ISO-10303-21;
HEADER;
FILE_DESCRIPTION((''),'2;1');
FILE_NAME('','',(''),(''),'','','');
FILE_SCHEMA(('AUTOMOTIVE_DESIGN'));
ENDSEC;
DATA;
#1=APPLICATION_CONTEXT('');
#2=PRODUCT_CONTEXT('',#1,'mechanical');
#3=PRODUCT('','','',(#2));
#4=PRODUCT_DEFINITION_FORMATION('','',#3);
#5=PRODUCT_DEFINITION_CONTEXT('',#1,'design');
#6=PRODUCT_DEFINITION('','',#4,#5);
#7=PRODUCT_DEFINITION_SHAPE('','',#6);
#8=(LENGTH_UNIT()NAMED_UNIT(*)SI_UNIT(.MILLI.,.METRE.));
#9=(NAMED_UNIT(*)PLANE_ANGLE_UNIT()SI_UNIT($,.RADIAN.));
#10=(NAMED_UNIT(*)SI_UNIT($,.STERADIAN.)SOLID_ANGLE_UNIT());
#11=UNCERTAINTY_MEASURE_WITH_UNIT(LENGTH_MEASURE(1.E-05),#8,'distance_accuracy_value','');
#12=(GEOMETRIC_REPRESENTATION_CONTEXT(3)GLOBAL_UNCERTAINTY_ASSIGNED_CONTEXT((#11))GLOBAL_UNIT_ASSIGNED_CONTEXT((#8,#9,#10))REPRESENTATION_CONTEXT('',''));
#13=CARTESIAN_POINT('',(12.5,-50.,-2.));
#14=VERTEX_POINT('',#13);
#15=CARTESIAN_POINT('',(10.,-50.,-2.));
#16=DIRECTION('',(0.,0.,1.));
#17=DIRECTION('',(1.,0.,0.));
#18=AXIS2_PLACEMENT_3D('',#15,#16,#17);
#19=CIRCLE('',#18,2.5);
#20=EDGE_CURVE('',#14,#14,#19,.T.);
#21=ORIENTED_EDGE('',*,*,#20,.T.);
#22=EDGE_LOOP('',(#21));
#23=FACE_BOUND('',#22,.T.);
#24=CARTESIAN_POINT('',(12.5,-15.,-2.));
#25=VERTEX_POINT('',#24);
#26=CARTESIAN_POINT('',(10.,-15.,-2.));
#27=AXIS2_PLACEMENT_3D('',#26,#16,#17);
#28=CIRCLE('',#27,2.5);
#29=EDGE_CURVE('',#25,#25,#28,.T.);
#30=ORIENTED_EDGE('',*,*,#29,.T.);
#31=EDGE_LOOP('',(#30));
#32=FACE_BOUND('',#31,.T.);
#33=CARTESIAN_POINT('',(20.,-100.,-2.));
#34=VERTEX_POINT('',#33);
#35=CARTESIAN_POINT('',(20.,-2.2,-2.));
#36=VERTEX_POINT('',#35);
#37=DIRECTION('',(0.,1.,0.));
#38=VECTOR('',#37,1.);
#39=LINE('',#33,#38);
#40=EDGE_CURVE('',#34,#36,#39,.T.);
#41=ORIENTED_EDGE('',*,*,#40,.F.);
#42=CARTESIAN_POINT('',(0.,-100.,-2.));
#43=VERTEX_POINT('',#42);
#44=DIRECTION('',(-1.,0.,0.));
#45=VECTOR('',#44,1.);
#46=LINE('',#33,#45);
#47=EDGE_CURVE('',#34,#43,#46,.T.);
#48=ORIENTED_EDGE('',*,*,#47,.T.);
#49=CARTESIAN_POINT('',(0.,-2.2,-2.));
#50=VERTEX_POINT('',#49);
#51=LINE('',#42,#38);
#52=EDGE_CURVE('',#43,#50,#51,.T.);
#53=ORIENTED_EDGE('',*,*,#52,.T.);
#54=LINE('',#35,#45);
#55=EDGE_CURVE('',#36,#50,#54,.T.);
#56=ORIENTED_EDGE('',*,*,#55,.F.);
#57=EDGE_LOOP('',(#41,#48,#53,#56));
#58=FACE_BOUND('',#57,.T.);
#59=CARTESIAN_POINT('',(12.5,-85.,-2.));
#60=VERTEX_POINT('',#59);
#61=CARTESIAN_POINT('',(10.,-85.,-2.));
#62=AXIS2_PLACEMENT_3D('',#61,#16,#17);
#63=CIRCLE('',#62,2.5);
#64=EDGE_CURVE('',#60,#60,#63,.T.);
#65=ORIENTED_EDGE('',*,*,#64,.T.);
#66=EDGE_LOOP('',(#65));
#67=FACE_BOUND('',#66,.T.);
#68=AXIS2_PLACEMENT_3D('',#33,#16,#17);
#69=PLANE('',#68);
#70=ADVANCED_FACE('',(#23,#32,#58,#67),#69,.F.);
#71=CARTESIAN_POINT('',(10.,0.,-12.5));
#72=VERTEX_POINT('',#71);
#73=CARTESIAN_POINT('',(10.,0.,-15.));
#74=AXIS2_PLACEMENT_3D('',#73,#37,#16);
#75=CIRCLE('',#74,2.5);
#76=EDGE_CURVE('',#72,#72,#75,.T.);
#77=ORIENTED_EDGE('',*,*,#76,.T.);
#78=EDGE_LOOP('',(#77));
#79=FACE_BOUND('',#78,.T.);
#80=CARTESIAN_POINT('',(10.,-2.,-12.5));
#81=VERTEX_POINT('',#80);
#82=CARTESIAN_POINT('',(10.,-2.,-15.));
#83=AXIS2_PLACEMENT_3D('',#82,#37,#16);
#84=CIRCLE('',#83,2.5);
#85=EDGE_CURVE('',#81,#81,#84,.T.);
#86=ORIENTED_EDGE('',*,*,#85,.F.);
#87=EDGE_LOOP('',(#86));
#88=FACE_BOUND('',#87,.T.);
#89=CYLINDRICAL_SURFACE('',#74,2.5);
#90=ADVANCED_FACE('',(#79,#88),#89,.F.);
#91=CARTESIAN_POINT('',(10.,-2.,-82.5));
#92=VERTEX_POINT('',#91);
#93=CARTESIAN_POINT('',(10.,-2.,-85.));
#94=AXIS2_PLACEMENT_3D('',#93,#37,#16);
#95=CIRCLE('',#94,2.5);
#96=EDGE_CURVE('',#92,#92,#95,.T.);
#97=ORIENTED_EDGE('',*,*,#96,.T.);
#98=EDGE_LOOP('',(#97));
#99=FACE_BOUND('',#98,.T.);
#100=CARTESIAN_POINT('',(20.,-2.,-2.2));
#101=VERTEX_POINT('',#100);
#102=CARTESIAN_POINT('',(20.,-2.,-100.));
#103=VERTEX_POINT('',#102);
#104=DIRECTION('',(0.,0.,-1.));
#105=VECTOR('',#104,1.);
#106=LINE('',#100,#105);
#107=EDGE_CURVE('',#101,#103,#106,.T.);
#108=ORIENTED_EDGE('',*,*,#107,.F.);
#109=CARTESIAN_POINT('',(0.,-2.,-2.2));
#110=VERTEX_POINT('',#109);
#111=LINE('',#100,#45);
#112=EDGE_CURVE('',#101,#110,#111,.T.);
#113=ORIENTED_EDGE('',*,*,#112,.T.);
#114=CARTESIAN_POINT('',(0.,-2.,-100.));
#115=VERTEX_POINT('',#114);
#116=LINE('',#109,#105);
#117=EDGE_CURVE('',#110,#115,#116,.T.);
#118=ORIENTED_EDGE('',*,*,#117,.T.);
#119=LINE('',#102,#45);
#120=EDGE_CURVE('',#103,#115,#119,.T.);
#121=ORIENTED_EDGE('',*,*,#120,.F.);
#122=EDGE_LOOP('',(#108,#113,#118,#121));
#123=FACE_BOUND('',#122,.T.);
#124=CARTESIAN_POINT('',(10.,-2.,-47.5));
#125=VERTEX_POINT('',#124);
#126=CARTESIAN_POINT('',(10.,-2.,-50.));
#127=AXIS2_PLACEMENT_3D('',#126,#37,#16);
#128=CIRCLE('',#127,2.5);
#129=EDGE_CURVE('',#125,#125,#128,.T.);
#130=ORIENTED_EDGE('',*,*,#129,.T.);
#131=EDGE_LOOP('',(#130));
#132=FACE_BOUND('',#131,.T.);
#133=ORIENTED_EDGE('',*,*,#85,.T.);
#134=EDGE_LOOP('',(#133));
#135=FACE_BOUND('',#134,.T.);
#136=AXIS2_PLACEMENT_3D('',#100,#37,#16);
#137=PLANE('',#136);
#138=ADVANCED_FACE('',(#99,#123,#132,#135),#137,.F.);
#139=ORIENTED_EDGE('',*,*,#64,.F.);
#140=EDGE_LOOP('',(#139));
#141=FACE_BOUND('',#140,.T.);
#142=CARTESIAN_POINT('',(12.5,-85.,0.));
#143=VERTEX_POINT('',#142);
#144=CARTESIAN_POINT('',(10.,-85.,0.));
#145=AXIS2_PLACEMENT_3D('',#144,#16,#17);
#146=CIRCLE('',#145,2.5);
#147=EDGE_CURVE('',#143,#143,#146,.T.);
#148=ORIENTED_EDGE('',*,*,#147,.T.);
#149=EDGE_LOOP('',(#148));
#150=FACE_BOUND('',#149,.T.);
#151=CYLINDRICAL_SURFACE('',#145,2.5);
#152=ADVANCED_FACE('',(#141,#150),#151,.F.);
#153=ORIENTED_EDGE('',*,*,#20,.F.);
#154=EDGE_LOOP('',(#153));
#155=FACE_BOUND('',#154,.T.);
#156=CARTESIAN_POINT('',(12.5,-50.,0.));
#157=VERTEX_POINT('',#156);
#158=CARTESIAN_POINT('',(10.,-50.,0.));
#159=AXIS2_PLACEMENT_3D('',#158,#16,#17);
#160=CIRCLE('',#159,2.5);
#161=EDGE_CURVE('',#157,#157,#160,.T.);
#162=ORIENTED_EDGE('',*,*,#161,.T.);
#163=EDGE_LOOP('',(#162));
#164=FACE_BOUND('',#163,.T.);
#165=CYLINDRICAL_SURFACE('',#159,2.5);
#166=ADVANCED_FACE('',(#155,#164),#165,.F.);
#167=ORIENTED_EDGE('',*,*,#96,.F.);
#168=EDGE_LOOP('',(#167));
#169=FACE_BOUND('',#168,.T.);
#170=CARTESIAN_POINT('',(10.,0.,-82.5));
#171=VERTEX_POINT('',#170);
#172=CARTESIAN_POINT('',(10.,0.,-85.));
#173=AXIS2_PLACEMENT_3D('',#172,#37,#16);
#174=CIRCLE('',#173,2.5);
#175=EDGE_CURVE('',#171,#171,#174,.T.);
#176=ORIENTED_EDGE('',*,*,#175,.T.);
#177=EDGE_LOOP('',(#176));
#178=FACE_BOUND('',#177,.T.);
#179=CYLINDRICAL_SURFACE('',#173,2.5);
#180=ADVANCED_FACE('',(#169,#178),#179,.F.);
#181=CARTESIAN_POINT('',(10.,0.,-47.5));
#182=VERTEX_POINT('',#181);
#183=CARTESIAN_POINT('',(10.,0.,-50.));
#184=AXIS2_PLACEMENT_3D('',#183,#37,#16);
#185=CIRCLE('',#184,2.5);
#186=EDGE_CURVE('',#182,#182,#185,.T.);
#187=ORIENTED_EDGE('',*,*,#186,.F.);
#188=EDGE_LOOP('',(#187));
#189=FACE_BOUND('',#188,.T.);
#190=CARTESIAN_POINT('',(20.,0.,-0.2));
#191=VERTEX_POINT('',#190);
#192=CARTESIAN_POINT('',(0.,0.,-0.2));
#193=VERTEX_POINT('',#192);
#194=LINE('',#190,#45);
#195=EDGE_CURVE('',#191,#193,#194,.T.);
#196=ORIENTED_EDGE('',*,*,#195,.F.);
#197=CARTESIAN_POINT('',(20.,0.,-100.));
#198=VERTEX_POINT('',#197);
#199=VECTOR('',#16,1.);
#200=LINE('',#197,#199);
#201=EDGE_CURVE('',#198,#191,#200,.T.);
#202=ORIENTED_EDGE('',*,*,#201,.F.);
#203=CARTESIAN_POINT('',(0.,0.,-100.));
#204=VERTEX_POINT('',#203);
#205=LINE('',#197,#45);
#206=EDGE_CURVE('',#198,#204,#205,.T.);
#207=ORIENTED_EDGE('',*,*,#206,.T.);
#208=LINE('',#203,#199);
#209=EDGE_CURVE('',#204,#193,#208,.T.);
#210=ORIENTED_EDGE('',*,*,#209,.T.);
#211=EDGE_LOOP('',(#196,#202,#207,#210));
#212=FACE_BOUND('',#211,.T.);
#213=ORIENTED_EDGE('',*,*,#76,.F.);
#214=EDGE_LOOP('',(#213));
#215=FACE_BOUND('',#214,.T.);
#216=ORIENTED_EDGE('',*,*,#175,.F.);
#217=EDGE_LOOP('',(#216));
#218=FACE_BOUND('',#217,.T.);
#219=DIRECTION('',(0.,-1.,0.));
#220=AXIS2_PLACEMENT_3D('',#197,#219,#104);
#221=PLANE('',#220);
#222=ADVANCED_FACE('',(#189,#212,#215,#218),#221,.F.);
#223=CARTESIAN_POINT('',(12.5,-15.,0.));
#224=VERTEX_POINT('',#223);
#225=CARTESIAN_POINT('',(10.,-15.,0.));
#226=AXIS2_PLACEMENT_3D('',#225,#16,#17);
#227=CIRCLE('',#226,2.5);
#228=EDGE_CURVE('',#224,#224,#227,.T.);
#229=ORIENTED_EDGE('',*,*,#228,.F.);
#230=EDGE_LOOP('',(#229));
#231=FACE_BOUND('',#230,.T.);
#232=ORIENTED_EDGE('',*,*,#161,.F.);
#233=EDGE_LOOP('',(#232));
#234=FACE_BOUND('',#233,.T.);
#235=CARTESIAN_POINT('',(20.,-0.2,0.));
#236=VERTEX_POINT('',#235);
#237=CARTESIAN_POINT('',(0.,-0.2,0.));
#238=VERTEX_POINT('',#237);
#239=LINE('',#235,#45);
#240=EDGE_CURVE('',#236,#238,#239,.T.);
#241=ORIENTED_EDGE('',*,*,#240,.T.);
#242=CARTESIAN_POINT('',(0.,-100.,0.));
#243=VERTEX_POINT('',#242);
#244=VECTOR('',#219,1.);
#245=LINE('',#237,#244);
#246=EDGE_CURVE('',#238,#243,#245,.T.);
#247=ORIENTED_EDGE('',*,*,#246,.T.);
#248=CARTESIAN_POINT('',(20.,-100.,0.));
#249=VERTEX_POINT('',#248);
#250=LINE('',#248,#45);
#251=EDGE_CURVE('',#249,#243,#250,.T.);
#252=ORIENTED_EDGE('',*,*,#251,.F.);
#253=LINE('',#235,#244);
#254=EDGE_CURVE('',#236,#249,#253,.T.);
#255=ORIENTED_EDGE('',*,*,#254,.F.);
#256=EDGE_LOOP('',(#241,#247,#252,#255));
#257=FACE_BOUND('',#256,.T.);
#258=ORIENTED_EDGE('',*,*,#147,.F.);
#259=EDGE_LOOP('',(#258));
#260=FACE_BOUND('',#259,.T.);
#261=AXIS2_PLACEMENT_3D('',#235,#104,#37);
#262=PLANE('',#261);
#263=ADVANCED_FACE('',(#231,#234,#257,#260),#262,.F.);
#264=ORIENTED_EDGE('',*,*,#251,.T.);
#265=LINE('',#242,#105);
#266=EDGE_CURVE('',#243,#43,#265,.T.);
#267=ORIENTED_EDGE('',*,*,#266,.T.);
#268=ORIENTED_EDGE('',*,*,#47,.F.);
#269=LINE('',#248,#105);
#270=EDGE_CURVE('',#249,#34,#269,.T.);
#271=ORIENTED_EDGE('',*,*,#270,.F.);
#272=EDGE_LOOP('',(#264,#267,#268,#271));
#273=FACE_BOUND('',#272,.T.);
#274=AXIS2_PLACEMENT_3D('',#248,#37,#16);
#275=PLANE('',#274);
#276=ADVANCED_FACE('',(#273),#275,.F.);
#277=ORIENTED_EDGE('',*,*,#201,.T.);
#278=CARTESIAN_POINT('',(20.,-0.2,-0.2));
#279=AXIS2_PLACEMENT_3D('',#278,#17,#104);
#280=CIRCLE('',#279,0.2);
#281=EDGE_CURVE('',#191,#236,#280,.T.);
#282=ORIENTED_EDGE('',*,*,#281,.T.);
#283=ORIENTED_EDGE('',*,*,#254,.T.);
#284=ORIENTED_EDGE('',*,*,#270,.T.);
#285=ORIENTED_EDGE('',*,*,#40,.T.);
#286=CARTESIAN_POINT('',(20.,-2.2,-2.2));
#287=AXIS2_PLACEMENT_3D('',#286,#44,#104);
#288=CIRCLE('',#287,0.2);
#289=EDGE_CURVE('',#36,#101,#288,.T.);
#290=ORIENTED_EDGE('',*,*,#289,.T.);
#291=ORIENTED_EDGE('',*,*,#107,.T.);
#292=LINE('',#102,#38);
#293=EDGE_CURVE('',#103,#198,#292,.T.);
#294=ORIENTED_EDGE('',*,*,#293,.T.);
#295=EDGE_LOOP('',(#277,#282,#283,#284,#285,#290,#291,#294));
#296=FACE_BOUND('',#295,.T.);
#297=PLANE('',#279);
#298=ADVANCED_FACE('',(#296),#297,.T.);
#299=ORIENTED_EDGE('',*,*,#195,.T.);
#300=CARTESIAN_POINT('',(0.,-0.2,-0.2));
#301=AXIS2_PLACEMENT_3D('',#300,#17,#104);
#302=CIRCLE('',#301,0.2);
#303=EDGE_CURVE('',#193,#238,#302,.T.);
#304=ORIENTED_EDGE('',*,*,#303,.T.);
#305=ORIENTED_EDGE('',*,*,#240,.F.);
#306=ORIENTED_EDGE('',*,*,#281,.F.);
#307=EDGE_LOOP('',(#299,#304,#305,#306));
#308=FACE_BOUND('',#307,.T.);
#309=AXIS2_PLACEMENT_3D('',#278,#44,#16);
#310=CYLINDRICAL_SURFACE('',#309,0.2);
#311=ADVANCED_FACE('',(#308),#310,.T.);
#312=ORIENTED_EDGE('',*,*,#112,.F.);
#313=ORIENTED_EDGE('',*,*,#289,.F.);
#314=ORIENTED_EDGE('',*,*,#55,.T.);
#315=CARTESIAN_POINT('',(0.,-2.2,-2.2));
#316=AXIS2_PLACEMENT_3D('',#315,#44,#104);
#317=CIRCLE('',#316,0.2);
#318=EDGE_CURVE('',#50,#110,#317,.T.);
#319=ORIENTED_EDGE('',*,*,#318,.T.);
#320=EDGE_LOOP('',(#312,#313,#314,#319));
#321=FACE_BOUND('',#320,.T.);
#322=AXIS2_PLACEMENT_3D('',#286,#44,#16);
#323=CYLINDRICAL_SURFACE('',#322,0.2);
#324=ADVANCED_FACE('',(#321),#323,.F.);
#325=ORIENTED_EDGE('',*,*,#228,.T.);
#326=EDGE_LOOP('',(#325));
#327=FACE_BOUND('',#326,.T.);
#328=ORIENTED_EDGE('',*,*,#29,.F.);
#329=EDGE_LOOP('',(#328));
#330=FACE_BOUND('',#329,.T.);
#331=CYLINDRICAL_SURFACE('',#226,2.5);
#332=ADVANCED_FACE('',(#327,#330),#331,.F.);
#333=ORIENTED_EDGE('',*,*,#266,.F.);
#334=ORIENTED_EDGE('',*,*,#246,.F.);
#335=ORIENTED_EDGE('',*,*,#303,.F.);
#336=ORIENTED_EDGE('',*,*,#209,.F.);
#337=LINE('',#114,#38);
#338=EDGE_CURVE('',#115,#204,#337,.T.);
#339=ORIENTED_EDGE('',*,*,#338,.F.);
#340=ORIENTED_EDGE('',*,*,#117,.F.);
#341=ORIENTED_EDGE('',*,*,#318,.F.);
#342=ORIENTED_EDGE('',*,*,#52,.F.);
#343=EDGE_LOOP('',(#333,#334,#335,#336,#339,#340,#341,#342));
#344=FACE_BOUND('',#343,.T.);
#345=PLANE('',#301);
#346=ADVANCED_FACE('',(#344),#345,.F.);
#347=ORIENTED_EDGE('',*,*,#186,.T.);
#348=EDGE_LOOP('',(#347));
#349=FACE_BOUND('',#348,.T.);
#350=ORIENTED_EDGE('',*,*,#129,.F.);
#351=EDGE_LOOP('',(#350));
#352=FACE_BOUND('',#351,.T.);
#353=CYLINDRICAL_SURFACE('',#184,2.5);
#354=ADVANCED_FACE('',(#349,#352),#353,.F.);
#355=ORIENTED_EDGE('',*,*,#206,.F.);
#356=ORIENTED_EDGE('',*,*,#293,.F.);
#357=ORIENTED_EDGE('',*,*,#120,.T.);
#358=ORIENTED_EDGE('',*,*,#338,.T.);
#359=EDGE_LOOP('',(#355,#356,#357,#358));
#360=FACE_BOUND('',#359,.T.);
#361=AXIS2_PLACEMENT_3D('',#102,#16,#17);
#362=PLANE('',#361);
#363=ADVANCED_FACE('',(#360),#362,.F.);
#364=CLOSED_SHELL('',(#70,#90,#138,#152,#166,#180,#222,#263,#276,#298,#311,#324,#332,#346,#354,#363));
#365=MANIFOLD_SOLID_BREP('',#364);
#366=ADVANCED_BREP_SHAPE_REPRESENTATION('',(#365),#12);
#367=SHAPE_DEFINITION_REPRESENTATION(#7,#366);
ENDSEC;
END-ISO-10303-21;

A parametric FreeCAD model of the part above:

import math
import FreeCAD as App
import Part
import Sketcher

doc = App.newDocument("Part")
body = doc.addObject("PartDesign::Body", "Body")

# Sketch on YZ plane
sketch1 = body.newObject("Sketcher::SketchObject", "Sketch")
sketch1.AttachmentSupport = (doc.getObject("YZ_Plane"), [""])
sketch1.MapMode = "FlatFace"
sketch1.addGeometry(Part.LineSegment(App.Vector(0, -100, 0), App.Vector(0, -0.2, 0)), False)
sketch1.addGeometry(Part.ArcOfCircle(Part.Circle(App.Vector(-0.2, -0.2, 0), App.Vector(0, 0, 1), 0.2), math.radians(0), math.radians(90)), False)
sketch1.addGeometry(Part.LineSegment(App.Vector(-0.2, 0, 0), App.Vector(-100, 0, 0)), False)
sketch1.addGeometry(Part.LineSegment(App.Vector(-100, 0, 0), App.Vector(-100, -2, 0)), False)
sketch1.addGeometry(Part.LineSegment(App.Vector(-100, -2, 0), App.Vector(-2.2, -2, 0)), False)
sketch1.addGeometry(Part.ArcOfCircle(Part.Circle(App.Vector(-2.2, -2.2, 0), App.Vector(0, 0, 1), 0.2), math.radians(0), math.radians(90)), False)
sketch1.addGeometry(Part.LineSegment(App.Vector(-2, -2.2, 0), App.Vector(-2, -100, 0)), False)
sketch1.addGeometry(Part.LineSegment(App.Vector(-2, -100, 0), App.Vector(0, -100, 0)), False)
sketch1.addConstraint(Sketcher.Constraint("Tangent", 0, 2, 1, 1))
sketch1.addConstraint(Sketcher.Constraint("Tangent", 1, 2, 2, 1))
sketch1.addConstraint(Sketcher.Constraint("Coincident", 2, 2, 3, 1))
sketch1.addConstraint(Sketcher.Constraint("Coincident", 3, 2, 4, 1))
sketch1.addConstraint(Sketcher.Constraint("Tangent", 4, 2, 5, 2))
sketch1.addConstraint(Sketcher.Constraint("Tangent", 5, 1, 6, 1))
sketch1.addConstraint(Sketcher.Constraint("Coincident", 6, 2, 7, 1))
sketch1.addConstraint(Sketcher.Constraint("Coincident", 7, 2, 0, 1))
sketch1.addConstraint(Sketcher.Constraint("Vertical", 0))
sketch1.addConstraint(Sketcher.Constraint("Horizontal", 2))
sketch1.addConstraint(Sketcher.Constraint("Vertical", 3))
sketch1.addConstraint(Sketcher.Constraint("Horizontal", 4))
sketch1.addConstraint(Sketcher.Constraint("Vertical", 6))
sketch1.addConstraint(Sketcher.Constraint("Horizontal", 7))
sketch1.addConstraint(Sketcher.Constraint("Equal", 1, 5))
sketch1.addConstraint(Sketcher.Constraint("PointOnObject", 0, 2, -2))
sketch1.addConstraint(Sketcher.Constraint("PointOnObject", 1, 2, -1))
sketch1.addConstraint(Sketcher.Constraint("Equal", 2, 0))
sketch1.addConstraint(Sketcher.Constraint("Equal", 7, 3))
sketch1.addConstraint(Sketcher.Constraint("Radius", 1, 0.2))
sketch1.addConstraint(Sketcher.Constraint("DistanceX", 7, 1, 7, 2, 2.0))
sketch1.addConstraint(Sketcher.Constraint("DistanceX", 2, 2, 2, 1, 99.8))
pad1 = body.newObject("PartDesign::Pad", "Pad")
pad1.Profile = sketch1
pad1.Length = 20

# Sketch on XZ plane
sketch2 = body.newObject("Sketcher::SketchObject", "Sketch001")
sketch2.AttachmentSupport = (doc.getObject("XZ_Plane"), [""])
sketch2.MapMode = "FlatFace"
sketch2.addGeometry(Part.Circle(App.Vector(10, -15, 0), App.Vector(0, 0, 1), 2.5), False)
sketch2.addGeometry(Part.Circle(App.Vector(10, -50, 0), App.Vector(0, 0, 1), 2.5), False)
sketch2.addGeometry(Part.Circle(App.Vector(10, -85, 0), App.Vector(0, 0, 1), 2.5), False)
sketch2.addConstraint(Sketcher.Constraint("Equal", 0, 1))
sketch2.addConstraint(Sketcher.Constraint("Equal", 1, 2))
sketch2.addConstraint(Sketcher.Constraint("Vertical", 0, 3, 1, 3))
sketch2.addConstraint(Sketcher.Constraint("Vertical", 1, 3, 2, 3))
sketch2.addConstraint(Sketcher.Constraint("Diameter", 0, 5.0))
sketch2.addConstraint(Sketcher.Constraint("DistanceX", -1, 1, 0, 3, 10.0))
sketch2.addConstraint(Sketcher.Constraint("DistanceY", 0, 3, -1, 1, 15.0))
sketch2.addConstraint(Sketcher.Constraint("DistanceY", 1, 3, -1, 1, 50.0))
sketch2.addConstraint(Sketcher.Constraint("DistanceY", 2, 3, -1, 1, 85.0))
doc.recompute()
hole = body.newObject("PartDesign::Hole", "Hole")
hole.Profile = sketch2
hole.ThreadType = "None"
hole.Diameter = 5
hole.DepthType = "ThroughAll"
hole.Reversed = True

# Sketch on XY plane
sketch3 = body.newObject("Sketcher::SketchObject", "Sketch002")
sketch3.AttachmentSupport = (doc.getObject("XY_Plane"), [""])
sketch3.MapMode = "FlatFace"
sketch3.addGeometry(Part.Circle(App.Vector(10, -85, 0), App.Vector(0, 0, 1), 2.5), False)
sketch3.addGeometry(Part.Circle(App.Vector(10, -50, 0), App.Vector(0, 0, 1), 2.5), False)
sketch3.addGeometry(Part.Circle(App.Vector(10, -15, 0), App.Vector(0, 0, 1), 2.5), False)
sketch3.addConstraint(Sketcher.Constraint("Equal", 0, 1))
sketch3.addConstraint(Sketcher.Constraint("Equal", 1, 2))
sketch3.addConstraint(Sketcher.Constraint("Vertical", 0, 3, 1, 3))
sketch3.addConstraint(Sketcher.Constraint("Vertical", 1, 3, 2, 3))
sketch3.addConstraint(Sketcher.Constraint("Diameter", 0, 5.0))
sketch3.addConstraint(Sketcher.Constraint("DistanceX", -1, 1, 0, 3, 10.0))
sketch3.addConstraint(Sketcher.Constraint("DistanceY", 0, 3, -1, 1, 85.0))
sketch3.addConstraint(Sketcher.Constraint("DistanceY", 1, 3, -1, 1, 50.0))
sketch3.addConstraint(Sketcher.Constraint("DistanceY", 2, 3, -1, 1, 15.0))
doc.recompute()
hole2 = body.newObject("PartDesign::Hole", "Hole001")
hole2.Profile = sketch3
hole2.ThreadType = "None"
hole2.Diameter = 5
hole2.DepthType = "ThroughAll"

doc.recompute()
